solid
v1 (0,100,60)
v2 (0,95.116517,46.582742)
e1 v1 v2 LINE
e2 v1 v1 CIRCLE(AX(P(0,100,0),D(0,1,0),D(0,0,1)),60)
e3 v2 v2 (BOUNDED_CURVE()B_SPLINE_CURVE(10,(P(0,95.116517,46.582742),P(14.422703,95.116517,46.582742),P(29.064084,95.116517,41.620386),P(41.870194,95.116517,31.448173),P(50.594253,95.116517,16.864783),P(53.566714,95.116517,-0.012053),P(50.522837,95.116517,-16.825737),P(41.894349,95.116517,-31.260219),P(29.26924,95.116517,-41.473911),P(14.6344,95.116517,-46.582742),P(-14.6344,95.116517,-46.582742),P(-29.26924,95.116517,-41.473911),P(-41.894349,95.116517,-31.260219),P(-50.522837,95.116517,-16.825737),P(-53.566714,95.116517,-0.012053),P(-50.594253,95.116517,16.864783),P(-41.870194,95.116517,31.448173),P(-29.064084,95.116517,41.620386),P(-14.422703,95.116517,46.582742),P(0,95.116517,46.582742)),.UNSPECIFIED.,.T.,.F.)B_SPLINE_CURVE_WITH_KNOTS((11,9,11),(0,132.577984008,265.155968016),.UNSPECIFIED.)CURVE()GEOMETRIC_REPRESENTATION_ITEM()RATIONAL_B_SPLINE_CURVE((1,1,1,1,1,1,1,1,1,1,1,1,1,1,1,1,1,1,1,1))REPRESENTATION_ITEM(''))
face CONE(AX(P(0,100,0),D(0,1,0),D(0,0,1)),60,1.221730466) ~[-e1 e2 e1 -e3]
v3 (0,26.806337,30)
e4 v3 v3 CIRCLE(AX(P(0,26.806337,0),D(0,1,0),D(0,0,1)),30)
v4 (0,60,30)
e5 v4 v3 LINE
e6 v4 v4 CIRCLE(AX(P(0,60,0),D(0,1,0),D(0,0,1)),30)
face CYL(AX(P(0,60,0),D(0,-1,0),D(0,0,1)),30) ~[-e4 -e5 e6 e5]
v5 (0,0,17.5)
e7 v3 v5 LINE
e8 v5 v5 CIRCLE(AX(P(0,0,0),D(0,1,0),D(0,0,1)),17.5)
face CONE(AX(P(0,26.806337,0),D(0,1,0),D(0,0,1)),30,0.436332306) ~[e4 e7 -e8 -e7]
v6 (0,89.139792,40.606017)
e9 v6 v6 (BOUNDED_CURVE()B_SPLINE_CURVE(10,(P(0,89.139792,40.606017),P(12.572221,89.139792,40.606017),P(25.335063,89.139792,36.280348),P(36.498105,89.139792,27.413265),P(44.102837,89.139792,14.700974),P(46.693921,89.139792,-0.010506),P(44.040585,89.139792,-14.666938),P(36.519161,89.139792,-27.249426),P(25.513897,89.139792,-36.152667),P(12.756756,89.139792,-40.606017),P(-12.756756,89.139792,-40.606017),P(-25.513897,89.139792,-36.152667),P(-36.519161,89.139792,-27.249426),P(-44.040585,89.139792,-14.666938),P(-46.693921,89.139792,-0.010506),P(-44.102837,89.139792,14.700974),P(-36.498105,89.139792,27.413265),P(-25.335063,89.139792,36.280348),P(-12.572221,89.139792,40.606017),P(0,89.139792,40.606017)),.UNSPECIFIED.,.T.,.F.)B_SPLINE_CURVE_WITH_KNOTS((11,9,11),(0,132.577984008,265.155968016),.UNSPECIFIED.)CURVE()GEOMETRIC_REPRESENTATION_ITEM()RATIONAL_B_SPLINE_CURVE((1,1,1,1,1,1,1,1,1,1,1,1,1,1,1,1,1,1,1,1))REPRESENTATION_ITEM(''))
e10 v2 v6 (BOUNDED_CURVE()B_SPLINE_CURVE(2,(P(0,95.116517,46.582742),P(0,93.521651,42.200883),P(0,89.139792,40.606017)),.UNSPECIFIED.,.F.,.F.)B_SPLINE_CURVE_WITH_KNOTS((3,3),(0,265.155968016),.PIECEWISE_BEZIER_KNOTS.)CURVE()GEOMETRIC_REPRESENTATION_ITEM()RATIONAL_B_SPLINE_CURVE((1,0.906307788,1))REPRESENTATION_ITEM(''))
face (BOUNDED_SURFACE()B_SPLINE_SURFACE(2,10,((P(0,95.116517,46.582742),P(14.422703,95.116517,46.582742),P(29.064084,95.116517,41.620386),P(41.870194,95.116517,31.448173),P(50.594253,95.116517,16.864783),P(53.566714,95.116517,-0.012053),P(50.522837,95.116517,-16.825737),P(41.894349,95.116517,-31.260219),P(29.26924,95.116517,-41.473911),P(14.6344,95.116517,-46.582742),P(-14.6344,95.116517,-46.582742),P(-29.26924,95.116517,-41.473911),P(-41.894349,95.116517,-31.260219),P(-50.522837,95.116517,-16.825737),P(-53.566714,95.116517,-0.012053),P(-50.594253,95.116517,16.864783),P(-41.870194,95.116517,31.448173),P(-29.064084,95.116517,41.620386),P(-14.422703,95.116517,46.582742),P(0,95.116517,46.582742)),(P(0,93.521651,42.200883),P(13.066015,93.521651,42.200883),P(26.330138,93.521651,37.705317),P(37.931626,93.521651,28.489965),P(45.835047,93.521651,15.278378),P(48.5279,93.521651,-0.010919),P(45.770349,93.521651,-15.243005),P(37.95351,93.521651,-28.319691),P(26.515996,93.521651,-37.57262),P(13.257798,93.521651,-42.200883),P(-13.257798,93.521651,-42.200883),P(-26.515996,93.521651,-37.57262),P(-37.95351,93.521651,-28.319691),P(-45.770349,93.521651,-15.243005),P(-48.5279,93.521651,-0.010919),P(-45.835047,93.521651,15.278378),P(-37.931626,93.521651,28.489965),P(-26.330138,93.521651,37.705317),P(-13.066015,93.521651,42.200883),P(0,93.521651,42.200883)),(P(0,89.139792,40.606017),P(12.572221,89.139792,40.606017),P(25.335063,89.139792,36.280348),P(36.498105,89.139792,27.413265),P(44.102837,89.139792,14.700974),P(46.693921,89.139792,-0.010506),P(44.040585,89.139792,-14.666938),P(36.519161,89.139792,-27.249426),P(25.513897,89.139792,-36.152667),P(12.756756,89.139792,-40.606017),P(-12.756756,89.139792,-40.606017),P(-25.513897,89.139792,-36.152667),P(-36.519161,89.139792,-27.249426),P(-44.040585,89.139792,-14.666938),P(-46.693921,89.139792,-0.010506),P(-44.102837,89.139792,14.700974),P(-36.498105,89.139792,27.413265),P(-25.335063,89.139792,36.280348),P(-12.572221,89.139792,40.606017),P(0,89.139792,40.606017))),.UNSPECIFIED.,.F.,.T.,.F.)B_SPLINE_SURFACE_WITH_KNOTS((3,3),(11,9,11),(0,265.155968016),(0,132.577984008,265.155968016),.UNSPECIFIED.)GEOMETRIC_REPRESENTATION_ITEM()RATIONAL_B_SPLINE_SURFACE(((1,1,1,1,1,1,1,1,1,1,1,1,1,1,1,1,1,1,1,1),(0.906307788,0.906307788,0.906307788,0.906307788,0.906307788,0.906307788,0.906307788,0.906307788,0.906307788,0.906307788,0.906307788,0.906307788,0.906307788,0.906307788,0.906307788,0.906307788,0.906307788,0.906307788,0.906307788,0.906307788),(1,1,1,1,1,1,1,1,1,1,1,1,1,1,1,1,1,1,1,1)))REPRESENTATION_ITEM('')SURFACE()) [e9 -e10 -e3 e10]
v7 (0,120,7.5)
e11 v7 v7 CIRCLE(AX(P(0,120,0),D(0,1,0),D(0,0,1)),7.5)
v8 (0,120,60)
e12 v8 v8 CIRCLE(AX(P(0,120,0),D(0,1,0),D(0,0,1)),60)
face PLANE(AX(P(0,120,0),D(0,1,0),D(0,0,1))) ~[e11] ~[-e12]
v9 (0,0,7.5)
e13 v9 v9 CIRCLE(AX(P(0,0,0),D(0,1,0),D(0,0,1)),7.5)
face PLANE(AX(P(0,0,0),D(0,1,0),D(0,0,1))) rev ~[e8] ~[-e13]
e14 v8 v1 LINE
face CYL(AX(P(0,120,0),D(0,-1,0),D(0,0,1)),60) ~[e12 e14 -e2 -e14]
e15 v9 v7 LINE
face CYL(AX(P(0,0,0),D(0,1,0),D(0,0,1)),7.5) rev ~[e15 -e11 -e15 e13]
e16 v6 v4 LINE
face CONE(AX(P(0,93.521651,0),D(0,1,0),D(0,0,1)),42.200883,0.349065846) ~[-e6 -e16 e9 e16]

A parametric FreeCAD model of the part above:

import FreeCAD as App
import Part
import Sketcher
Q = App.Units.Quantity


def edges_at(feature, points):
    """Names of the edges that pass closest to the given points."""
    edges = feature.Shape.Edges
    near = lambda p: min(range(len(edges)), key=lambda i: edges[i].distToShape(Part.Vertex(*p))[0])
    return sorted({f"Edge{near(p) + 1}" for p in points})

doc = App.newDocument("Part")
body = doc.addObject("PartDesign::Body", "Body")

sketch1 = body.newObject("Sketcher::SketchObject", "Sketch")
sketch1.AttachmentSupport = (doc.getObject("YZ_Plane"), [""])
sketch1.MapMode = "FlatFace"
sketch1.addGeometry([
    Part.LineSegment(App.Vector(0, 17.5, 0), App.Vector(0, 7.5, 0)),
    Part.LineSegment(App.Vector(0, 7.5, 0), App.Vector(120, 7.5, 0)),
    Part.LineSegment(App.Vector(120, 7.5, 0), App.Vector(120, 60, 0)),
    Part.LineSegment(App.Vector(120, 60, 0), App.Vector(100, 60, 0)),
    Part.LineSegment(App.Vector(100, 60, 0), App.Vector(93.521651, 42.200883, 0)),
    Part.LineSegment(App.Vector(93.521651, 42.200883, 0), App.Vector(60, 30, 0)),
    Part.LineSegment(App.Vector(60, 30, 0), App.Vector(26.806337, 30, 0)),
    Part.LineSegment(App.Vector(26.806337, 30, 0), App.Vector(0, 17.5, 0)),
], False)
sketch1.addConstraint([
    Sketcher.Constraint("Coincident", 0, 2, 1, 1),
    Sketcher.Constraint("Coincident", 1, 2, 2, 1),
    Sketcher.Constraint("Coincident", 2, 2, 3, 1),
    Sketcher.Constraint("Coincident", 3, 2, 4, 1),
    Sketcher.Constraint("Coincident", 4, 2, 5, 1),
    Sketcher.Constraint("Coincident", 5, 2, 6, 1),
    Sketcher.Constraint("Coincident", 6, 2, 7, 1),
    Sketcher.Constraint("Coincident", 7, 2, 0, 1),
    Sketcher.Constraint("Vertical", 0),
    Sketcher.Constraint("Horizontal", 1),
    Sketcher.Constraint("Vertical", 2),
    Sketcher.Constraint("Horizontal", 3),
    Sketcher.Constraint("Horizontal", 6),
    Sketcher.Constraint("PointOnObject", 0, 2, -2),
    Sketcher.Constraint("DistanceX", 1, 1, 1, 2, 120.0),
    Sketcher.Constraint("DistanceX", 3, 2, 3, 1, 20.0),
    Sketcher.Constraint("DistanceY", 0, 2, 0, 1, 10.0),
    Sketcher.Constraint("Angle", 4, Q("-110.000001 deg")),
    Sketcher.Constraint("Angle", 5, Q("-160 deg")),
    Sketcher.Constraint("Angle", 7, Q("-155 deg")),
    Sketcher.Constraint("DistanceY", 2, 1, 2, 2, 52.5),
    Sketcher.Constraint("DistanceY", -1, 1, 2, 2, 60.0),
    Sketcher.Constraint("DistanceX", -1, 1, 5, 2, 60.0),
    Sketcher.Constraint("DistanceY", -1, 1, 5, 2, 30.0),
])
revolution = body.newObject("PartDesign::Revolution", "Revolution")
revolution.Profile = sketch1
revolution.ReferenceAxis = (sketch1, ["H_Axis"])
revolution.Angle = 360
doc.recompute()

fillet = body.newObject("PartDesign::Fillet", "Fillet")
fillet.Base = (revolution, edges_at(revolution, [(0, 93.522, -42.201)]))
fillet.Radius = 10

doc.recompute()
